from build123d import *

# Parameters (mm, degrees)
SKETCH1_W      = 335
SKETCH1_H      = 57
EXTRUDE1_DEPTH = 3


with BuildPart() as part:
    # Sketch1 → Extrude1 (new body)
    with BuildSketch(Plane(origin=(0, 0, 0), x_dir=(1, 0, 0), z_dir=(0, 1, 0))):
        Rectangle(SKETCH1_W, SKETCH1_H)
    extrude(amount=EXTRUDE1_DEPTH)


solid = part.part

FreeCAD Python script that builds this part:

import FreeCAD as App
import Part
import Sketcher
from FreeCAD import Vector
Q = App.Units.Quantity

doc = App.newDocument("Part")
body = doc.addObject("PartDesign::Body", "Body")

# Sketch on XZ plane
sketch1 = doc.addObject("Sketcher::SketchObject", "Sketch")
body.addObject(sketch1)
sketch1.AttachmentSupport = (doc.XZ_Plane, [""])
sketch1.MapMode = "FlatFace"
sketch1.addGeometry([
    Part.LineSegment(Vector(-167.5, -28.5, 0), Vector(-167.5, 28.5, 0)),
    Part.LineSegment(Vector(-167.5, 28.5, 0), Vector(167.5, 28.5, 0)),
    Part.LineSegment(Vector(167.5, 28.5, 0), Vector(167.5, -28.5, 0)),
    Part.LineSegment(Vector(167.5, -28.5, 0), Vector(-167.5, -28.5, 0)),
], False)
sketch1.addConstraint([
    Sketcher.Constraint("Coincident", 0, 2, 1, 1),
    Sketcher.Constraint("Coincident", 1, 2, 2, 1),
    Sketcher.Constraint("Coincident", 2, 2, 3, 1),
    Sketcher.Constraint("Coincident", 3, 2, 0, 1),
    Sketcher.Constraint("Vertical", 0),
    Sketcher.Constraint("Horizontal", 1),
    Sketcher.Constraint("Vertical", 2),
    Sketcher.Constraint("Horizontal", 3),
    Sketcher.Constraint("Symmetric", 0, 2, 2, 2, -1, 1),
    Sketcher.Constraint("DistanceX", 1, 1, 1, 2, Q("335 mm")),
    Sketcher.Constraint("DistanceY", 0, 1, 0, 2, Q("57 mm")),
])
pad1 = doc.addObject("PartDesign::Pad", "Pad")
body.addObject(pad1)
pad1.Profile = sketch1
pad1.Length = 3
pad1.Reversed = True

doc.recompute()
